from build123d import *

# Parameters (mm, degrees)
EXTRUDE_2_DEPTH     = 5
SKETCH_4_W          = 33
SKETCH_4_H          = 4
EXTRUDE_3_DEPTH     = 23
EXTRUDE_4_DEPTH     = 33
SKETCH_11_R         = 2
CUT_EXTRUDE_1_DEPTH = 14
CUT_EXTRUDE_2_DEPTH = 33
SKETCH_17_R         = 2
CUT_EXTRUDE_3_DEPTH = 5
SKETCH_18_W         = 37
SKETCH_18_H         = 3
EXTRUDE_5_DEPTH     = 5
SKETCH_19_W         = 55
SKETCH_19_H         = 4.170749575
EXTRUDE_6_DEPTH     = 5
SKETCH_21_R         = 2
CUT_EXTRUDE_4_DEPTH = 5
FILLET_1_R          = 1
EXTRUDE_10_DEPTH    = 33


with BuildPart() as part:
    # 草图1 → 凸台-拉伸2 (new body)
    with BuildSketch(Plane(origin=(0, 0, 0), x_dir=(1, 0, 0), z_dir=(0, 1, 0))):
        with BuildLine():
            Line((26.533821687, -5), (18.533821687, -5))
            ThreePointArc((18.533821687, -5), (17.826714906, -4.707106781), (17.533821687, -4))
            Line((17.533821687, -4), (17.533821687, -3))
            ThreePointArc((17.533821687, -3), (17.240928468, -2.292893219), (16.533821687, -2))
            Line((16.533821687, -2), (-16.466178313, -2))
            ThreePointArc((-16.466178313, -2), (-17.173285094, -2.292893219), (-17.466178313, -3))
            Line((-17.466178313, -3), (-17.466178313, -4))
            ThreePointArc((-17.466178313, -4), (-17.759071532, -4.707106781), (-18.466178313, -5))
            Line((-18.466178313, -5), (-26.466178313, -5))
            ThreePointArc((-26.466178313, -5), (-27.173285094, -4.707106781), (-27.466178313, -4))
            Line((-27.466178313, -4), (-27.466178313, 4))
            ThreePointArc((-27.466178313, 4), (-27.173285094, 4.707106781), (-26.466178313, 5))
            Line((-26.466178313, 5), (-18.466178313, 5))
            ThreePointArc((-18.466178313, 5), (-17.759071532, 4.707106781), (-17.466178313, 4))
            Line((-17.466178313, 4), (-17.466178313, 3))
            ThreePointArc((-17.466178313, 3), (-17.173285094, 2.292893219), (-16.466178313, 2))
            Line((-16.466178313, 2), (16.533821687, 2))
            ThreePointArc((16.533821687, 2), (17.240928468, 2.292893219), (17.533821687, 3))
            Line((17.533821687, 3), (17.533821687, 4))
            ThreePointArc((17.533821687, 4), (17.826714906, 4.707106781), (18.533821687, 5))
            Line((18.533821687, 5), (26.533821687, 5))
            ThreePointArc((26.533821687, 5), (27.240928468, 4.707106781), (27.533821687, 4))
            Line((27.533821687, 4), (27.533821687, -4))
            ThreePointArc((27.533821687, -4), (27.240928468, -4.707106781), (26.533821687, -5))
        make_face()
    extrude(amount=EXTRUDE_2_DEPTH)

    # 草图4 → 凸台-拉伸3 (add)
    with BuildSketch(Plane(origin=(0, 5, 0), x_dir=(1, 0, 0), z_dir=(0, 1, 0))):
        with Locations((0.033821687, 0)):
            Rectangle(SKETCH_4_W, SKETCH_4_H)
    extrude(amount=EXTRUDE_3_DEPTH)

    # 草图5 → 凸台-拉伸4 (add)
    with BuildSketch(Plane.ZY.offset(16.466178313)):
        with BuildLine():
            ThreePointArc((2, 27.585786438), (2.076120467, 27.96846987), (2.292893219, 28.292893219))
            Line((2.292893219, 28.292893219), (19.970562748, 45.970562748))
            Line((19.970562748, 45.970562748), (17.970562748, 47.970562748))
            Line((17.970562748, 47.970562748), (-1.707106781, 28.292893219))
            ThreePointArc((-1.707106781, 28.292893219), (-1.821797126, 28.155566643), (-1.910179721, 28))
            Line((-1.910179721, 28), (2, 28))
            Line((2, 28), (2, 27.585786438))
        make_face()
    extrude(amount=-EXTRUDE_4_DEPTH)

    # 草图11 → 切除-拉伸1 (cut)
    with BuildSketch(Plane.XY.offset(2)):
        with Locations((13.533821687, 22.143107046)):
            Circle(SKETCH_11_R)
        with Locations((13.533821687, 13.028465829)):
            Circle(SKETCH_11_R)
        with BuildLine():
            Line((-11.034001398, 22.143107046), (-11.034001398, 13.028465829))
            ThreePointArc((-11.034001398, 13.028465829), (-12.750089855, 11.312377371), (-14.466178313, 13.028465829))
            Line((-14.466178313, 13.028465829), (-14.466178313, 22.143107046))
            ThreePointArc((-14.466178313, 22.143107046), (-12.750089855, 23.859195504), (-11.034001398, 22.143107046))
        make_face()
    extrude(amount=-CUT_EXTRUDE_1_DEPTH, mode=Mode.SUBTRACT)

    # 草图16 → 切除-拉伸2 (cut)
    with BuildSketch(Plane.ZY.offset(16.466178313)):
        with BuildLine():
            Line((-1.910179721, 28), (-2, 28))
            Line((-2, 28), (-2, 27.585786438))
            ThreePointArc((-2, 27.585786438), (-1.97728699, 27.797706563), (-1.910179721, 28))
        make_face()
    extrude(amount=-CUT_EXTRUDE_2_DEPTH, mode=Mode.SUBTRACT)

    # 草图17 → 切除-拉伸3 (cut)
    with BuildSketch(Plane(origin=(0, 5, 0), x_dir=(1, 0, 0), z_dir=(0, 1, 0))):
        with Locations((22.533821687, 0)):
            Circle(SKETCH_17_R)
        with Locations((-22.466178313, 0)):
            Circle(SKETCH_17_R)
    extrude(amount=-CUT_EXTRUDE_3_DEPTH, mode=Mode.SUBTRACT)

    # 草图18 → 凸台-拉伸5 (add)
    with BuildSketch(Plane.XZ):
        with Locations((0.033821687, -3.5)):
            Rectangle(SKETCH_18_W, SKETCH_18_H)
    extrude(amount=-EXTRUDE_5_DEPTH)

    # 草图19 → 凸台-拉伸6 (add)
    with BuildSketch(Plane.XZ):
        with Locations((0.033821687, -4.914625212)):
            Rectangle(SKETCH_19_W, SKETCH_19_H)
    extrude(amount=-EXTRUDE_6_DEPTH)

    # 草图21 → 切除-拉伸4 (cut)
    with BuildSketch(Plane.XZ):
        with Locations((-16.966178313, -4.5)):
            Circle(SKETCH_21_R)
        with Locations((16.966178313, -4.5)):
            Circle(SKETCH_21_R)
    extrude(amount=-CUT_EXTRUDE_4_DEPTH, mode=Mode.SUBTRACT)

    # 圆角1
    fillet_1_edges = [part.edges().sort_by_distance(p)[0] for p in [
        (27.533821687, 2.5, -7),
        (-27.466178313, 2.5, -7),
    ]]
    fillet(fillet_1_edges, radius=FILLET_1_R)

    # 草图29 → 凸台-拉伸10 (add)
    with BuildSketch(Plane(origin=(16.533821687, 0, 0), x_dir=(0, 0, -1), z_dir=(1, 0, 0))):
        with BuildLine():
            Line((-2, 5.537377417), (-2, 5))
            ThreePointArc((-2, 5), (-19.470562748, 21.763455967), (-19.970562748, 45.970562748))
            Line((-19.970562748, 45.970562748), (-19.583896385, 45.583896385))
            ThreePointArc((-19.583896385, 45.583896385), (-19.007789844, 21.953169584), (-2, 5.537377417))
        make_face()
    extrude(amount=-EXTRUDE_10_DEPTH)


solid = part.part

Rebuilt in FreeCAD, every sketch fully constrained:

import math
import FreeCAD as App
import Part
import Sketcher
Q = App.Units.Quantity


def edges_at(feature, points):
    """Names of the edges that pass closest to the given points."""
    edges = feature.Shape.Edges
    near = lambda p: min(range(len(edges)), key=lambda i: edges[i].distToShape(Part.Vertex(*p))[0])
    return sorted({f"Edge{near(p) + 1}" for p in points})


def add_polygon(sketch, points):
    """Adds a closed chain of lines whose ends are joined by coincident constraints."""
    first, n = sketch.GeometryCount, len(points)
    for a, b in zip(points, points[1:] + points[:1]):
        sketch.addGeometry(Part.LineSegment(App.Vector(*a, 0), App.Vector(*b, 0)), False)
    for i in range(n):
        sketch.addConstraint(Sketcher.Constraint("Coincident", first + i, 2, first + (i + 1) % n, 1))

doc = App.newDocument("Part")
body = doc.addObject("PartDesign::Body", "Body")

# Sketch on XZ plane
sketch1 = body.newObject("Sketcher::SketchObject", "Sketch")
sketch1.AttachmentSupport = (doc.getObject("XZ_Plane"), [""])
sketch1.MapMode = "FlatFace"
sketch1.addGeometry([
    Part.LineSegment(App.Vector(18.5, 5, 0), App.Vector(26.5, 5, 0)),  # 0
    Part.ArcOfCircle(Part.Circle(App.Vector(26.5, 4, 0), App.Vector(0, 0, 1), 1), math.radians(0), math.radians(90)),  # 1
    Part.LineSegment(App.Vector(27.5, 4, 0), App.Vector(27.5, -4, 0)),  # 2
    Part.ArcOfCircle(Part.Circle(App.Vector(26.5, -4, 0), App.Vector(0, 0, 1), 1), math.radians(-90), math.radians(0)),  # 3
    Part.LineSegment(App.Vector(26.5, -5, 0), App.Vector(18.5, -5, 0)),  # 4
    Part.ArcOfCircle(Part.Circle(App.Vector(18.5, -4, 0), App.Vector(0, 0, 1), 1), math.radians(-180), math.radians(-90)),  # 5
    Part.LineSegment(App.Vector(17.5, -4, 0), App.Vector(17.5, -3, 0)),  # 6
    Part.ArcOfCircle(Part.Circle(App.Vector(16.5, -3, 0), App.Vector(0, 0, 1), 1), math.radians(0), math.radians(90)),  # 7
    Part.LineSegment(App.Vector(16.5, -2, 0), App.Vector(-16.5, -2, 0)),  # 8
    Part.ArcOfCircle(Part.Circle(App.Vector(-16.5, -3, 0), App.Vector(0, 0, 1), 1), math.radians(90), math.radians(180)),  # 9
    Part.LineSegment(App.Vector(-17.5, -3, 0), App.Vector(-17.5, -4, 0)),  # 10
    Part.ArcOfCircle(Part.Circle(App.Vector(-18.5, -4, 0), App.Vector(0, 0, 1), 1), math.radians(-90), math.radians(0)),  # 11
    Part.LineSegment(App.Vector(-18.5, -5, 0), App.Vector(-26.5, -5, 0)),  # 12
    Part.ArcOfCircle(Part.Circle(App.Vector(-26.5, -4, 0), App.Vector(0, 0, 1), 1), math.radians(-180), math.radians(-90)),  # 13
    Part.LineSegment(App.Vector(-27.5, -4, 0), App.Vector(-27.5, 4, 0)),  # 14
    Part.ArcOfCircle(Part.Circle(App.Vector(-26.5, 4, 0), App.Vector(0, 0, 1), 1), math.radians(90), math.radians(180)),  # 15
    Part.LineSegment(App.Vector(-26.5, 5, 0), App.Vector(-18.5, 5, 0)),  # 16
    Part.ArcOfCircle(Part.Circle(App.Vector(-18.5, 4, 0), App.Vector(0, 0, 1), 1), math.radians(0), math.radians(90)),  # 17
    Part.LineSegment(App.Vector(-17.5, 4, 0), App.Vector(-17.5, 3, 0)),  # 18
    Part.ArcOfCircle(Part.Circle(App.Vector(-16.5, 3, 0), App.Vector(0, 0, 1), 1), math.radians(-180), math.radians(-90)),  # 19
    Part.LineSegment(App.Vector(-16.5, 2, 0), App.Vector(16.5, 2, 0)),  # 20
    Part.ArcOfCircle(Part.Circle(App.Vector(16.5, 3, 0), App.Vector(0, 0, 1), 1), math.radians(-90), math.radians(0)),  # 21
    Part.LineSegment(App.Vector(17.5, 3, 0), App.Vector(17.5, 4, 0)),  # 22
    Part.ArcOfCircle(Part.Circle(App.Vector(18.5, 4, 0), App.Vector(0, 0, 1), 1), math.radians(90), math.radians(180)),  # 23
], False)
sketch1.addConstraint([
    Sketcher.Constraint("Tangent", 0, 2, 1, 2),
    Sketcher.Constraint("Tangent", 1, 1, 2, 1),
    Sketcher.Constraint("Tangent", 2, 2, 3, 2),
    Sketcher.Constraint("Tangent", 3, 1, 4, 1),
    Sketcher.Constraint("Tangent", 4, 2, 5, 2),
    Sketcher.Constraint("Tangent", 5, 1, 6, 1),
    Sketcher.Constraint("Tangent", 6, 2, 7, 1),
    Sketcher.Constraint("Tangent", 7, 2, 8, 1),
    Sketcher.Constraint("Tangent", 8, 2, 9, 1),
    Sketcher.Constraint("Tangent", 9, 2, 10, 1),
    Sketcher.Constraint("Tangent", 10, 2, 11, 2),
    Sketcher.Constraint("Tangent", 11, 1, 12, 1),
    Sketcher.Constraint("Tangent", 12, 2, 13, 2),
    Sketcher.Constraint("Tangent", 13, 1, 14, 1),
    Sketcher.Constraint("Tangent", 14, 2, 15, 2),
    Sketcher.Constraint("Tangent", 15, 1, 16, 1),
    Sketcher.Constraint("Tangent", 16, 2, 17, 2),
    Sketcher.Constraint("Tangent", 17, 1, 18, 1),
    Sketcher.Constraint("Tangent", 18, 2, 19, 1),
    Sketcher.Constraint("Tangent", 19, 2, 20, 1),
    Sketcher.Constraint("Tangent", 20, 2, 21, 1),
    Sketcher.Constraint("Tangent", 21, 2, 22, 1),
    Sketcher.Constraint("Tangent", 22, 2, 23, 2),
    Sketcher.Constraint("Tangent", 23, 1, 0, 1),
    Sketcher.Constraint("Horizontal", 0),
    Sketcher.Constraint("Vertical", 2),
    Sketcher.Constraint("Horizontal", 4),
    Sketcher.Constraint("Vertical", 6),
    Sketcher.Constraint("Horizontal", 8),
    Sketcher.Constraint("Vertical", 10),
    Sketcher.Constraint("Horizontal", 12),
    Sketcher.Constraint("Vertical", 14),
    Sketcher.Constraint("Horizontal", 16),
    Sketcher.Constraint("Vertical", 18),
    Sketcher.Constraint("Horizontal", 20),
    Sketcher.Constraint("Vertical", 22),
    Sketcher.Constraint("Equal", 1, 3),
    Sketcher.Constraint("Equal", 3, 5),
    Sketcher.Constraint("Equal", 5, 7),
    Sketcher.Constraint("Equal", 7, 9),
    Sketcher.Constraint("Equal", 9, 11),
    Sketcher.Constraint("Equal", 11, 13),
    Sketcher.Constraint("Equal", 13, 15),
    Sketcher.Constraint("Equal", 15, 17),
    Sketcher.Constraint("Equal", 17, 19),
    Sketcher.Constraint("Equal", 19, 21),
    Sketcher.Constraint("Equal", 21, 23),
    Sketcher.Constraint("Symmetric", 11, 3, 17, 3, -1),
    Sketcher.Constraint("Symmetric", 7, 3, 21, 3, -1),
    Sketcher.Constraint("Horizontal", 5, 3, 11, 3),
    Sketcher.Constraint("Horizontal", 1, 3, 15, 3),
    Sketcher.Constraint("Equal", 4, 12),
    Sketcher.Constraint("Equal", 16, 2),
    Sketcher.Constraint("Radius", 1, 1.0),
    Sketcher.Constraint("DistanceX", 0, 1, 0, 2, 8.0),
    Sketcher.Constraint("DistanceX", 8, 2, 8, 1, 33.0),
    Sketcher.Constraint("DistanceY", 6, 1, 6, 2, 1.0),
    Sketcher.Constraint("DistanceX", -1, 1, 1, 3, 26.533822),
])
pad1 = body.newObject("PartDesign::Pad", "Pad")
pad1.Profile = sketch1
pad1.Length = 5
pad1.Reversed = True

# Sketch on XZ plane
sketch2 = body.newObject("Sketcher::SketchObject", "Sketch001")
sketch2.AttachmentSupport = (doc.getObject("XZ_Plane"), [""])
sketch2.MapMode = "FlatFace"
sketch2.AttachmentOffset = App.Placement(App.Vector(0, 0, -5), App.Rotation())
add_polygon(sketch2, [(-16.5, -2), (-16.5, 2), (16.5, 2), (16.5, -2)])  # lines 0-3
sketch2.addConstraint([
    Sketcher.Constraint("Vertical", 0),
    Sketcher.Constraint("Horizontal", 1),
    Sketcher.Constraint("Vertical", 2),
    Sketcher.Constraint("Horizontal", 3),
    Sketcher.Constraint("DistanceX", 1, 1, 1, 2, 33.0),
    Sketcher.Constraint("DistanceY", 0, 1, 0, 2, 4.0),
    Sketcher.Constraint("DistanceY", -1, 1, 0, 2, 2.0),
    Sketcher.Constraint("DistanceX", 0, 2, -1, 1, 16.466178),
])
pad2 = body.newObject("PartDesign::Pad", "Pad001")
pad2.Profile = sketch2
pad2.Length = 23
pad2.Reversed = True

# Sketch on YZ plane
sketch3 = body.newObject("Sketcher::SketchObject", "Sketch002")
sketch3.AttachmentSupport = (doc.getObject("YZ_Plane"), [""])
sketch3.MapMode = "FlatFace"
sketch3.AttachmentOffset = App.Placement(App.Vector(0, 0, -16.466178), App.Rotation())
sketch3.addGeometry([
    Part.ArcOfCircle(Part.Circle(App.Vector(27.59, 3, 0), App.Vector(0, 0, 1), 1), math.radians(-90), math.radians(-45)),  # 0
    Part.LineSegment(App.Vector(28.29, 2.29, 0), App.Vector(45.97, 19.97, 0)),  # 1
    Part.LineSegment(App.Vector(45.97, 19.97, 0), App.Vector(47.97, 17.97, 0)),  # 2
    Part.LineSegment(App.Vector(47.97, 17.97, 0), App.Vector(28.29, -1.71, 0)),  # 3
    Part.ArcOfCircle(Part.Circle(App.Vector(27.59, -1, 0), App.Vector(0, 0, 1), 1), math.radians(-66), math.radians(-45)),  # 4
    Part.LineSegment(App.Vector(28, -1.91, 0), App.Vector(28, 2, 0)),  # 5
    Part.LineSegment(App.Vector(28, 2, 0), App.Vector(27.59, 2, 0)),  # 6
], False)
sketch3.addConstraint([
    Sketcher.Constraint("Tangent", 0, 2, 1, 1),
    Sketcher.Constraint("Coincident", 1, 2, 2, 1),
    Sketcher.Constraint("Coincident", 2, 2, 3, 1),
    Sketcher.Constraint("Tangent", 3, 2, 4, 2),
    Sketcher.Constraint("Coincident", 4, 1, 5, 1),
    Sketcher.Constraint("Coincident", 5, 2, 6, 1),
    Sketcher.Constraint("Tangent", 6, 2, 0, 1),
    Sketcher.Constraint("Vertical", 5),
    Sketcher.Constraint("Horizontal", 6),
    Sketcher.Constraint("Equal", 0, 4),
    Sketcher.Constraint("Perpendicular", 1, 2),
    Sketcher.Constraint("Perpendicular", 2, 3),
    Sketcher.Constraint("Vertical", 0, 3, 4, 3),
    Sketcher.Constraint("Radius", 0, 1.0),
    Sketcher.Constraint("Angle", 1, Q("45 deg")),
    Sketcher.Constraint("Distance", 1, 25.0),
    Sketcher.Constraint("DistanceY", -1, 1, 0, 3, 3.0),
    Sketcher.Constraint("DistanceY", 4, 3, -1, 1, 1.0),
    Sketcher.Constraint("DistanceX", -1, 1, 4, 1, 28.0),
    Sketcher.Constraint("DistanceY", 5, 1, 5, 2, 3.91018),
])
pad3 = body.newObject("PartDesign::Pad", "Pad002")
pad3.Profile = sketch3
pad3.Length = 33

# Sketch on XY plane
sketch4 = body.newObject("Sketcher::SketchObject", "Sketch003")
sketch4.AttachmentSupport = (doc.getObject("XY_Plane"), [""])
sketch4.MapMode = "FlatFace"
sketch4.AttachmentOffset = App.Placement(App.Vector(0, 0, 2), App.Rotation())
sketch4.addGeometry([
    Part.Circle(App.Vector(13.5, 22.1, 0), App.Vector(0, 0, 1), 2),  # 0
    Part.Circle(App.Vector(13.5, 13, 0), App.Vector(0, 0, 1), 2),  # 1
    Part.LineSegment(App.Vector(-11, 13, 0), App.Vector(-11, 22.1, 0)),  # 2
    Part.ArcOfCircle(Part.Circle(App.Vector(-12.8, 22.1, 0), App.Vector(0, 0, 1), 1.7), math.radians(0), math.radians(180)),  # 3
    Part.LineSegment(App.Vector(-14.5, 22.1, 0), App.Vector(-14.5, 13, 0)),  # 4
    Part.ArcOfCircle(Part.Circle(App.Vector(-12.8, 13, 0), App.Vector(0, 0, 1), 1.7), math.radians(180), math.radians(360)),  # 5
], False)
sketch4.addConstraint([
    Sketcher.Constraint("Tangent", 2, 2, 3, 1),
    Sketcher.Constraint("Tangent", 3, 2, 4, 1),
    Sketcher.Constraint("Tangent", 4, 2, 5, 1),
    Sketcher.Constraint("Tangent", 5, 2, 2, 1),
    Sketcher.Constraint("Vertical", 2),
    Sketcher.Constraint("Vertical", 4),
    Sketcher.Constraint("Equal", 0, 1),
    Sketcher.Constraint("Horizontal", 0, 3, 3, 3),
    Sketcher.Constraint("Horizontal", 1, 3, 5, 3),
    Sketcher.Constraint("Vertical", 0, 3, 1, 3),
    Sketcher.Constraint("Diameter", 0, 4.0),
    Sketcher.Constraint("DistanceX", 3, 2, 0, 3, 28.0),
    Sketcher.Constraint("Radius", 3, 1.716088),
    Sketcher.Constraint("DistanceX", 2, 2, -1, 1, 11.034001),
    Sketcher.Constraint("DistanceY", 2, 1, 2, 2, 9.114641),
    Sketcher.Constraint("DistanceY", -1, 1, 0, 3, 22.143107),
])
pocket1 = body.newObject("PartDesign::Pocket", "Pocket")
pocket1.Profile = sketch4
pocket1.Length = 14

# Sketch on YZ plane
sketch5 = body.newObject("Sketcher::SketchObject", "Sketch004")
sketch5.AttachmentSupport = (doc.getObject("YZ_Plane"), [""])
sketch5.MapMode = "FlatFace"
sketch5.AttachmentOffset = App.Placement(App.Vector(0, 0, -16.466178), App.Rotation())
sketch5.addGeometry([
    Part.LineSegment(App.Vector(28, -1.91, 0), App.Vector(28, -2, 0)),
    Part.LineSegment(App.Vector(28, -2, 0), App.Vector(27.59, -2, 0)),
    Part.ArcOfCircle(Part.Circle(App.Vector(27.59, -1, 0), App.Vector(0, 0, 1), 1), math.radians(-90), math.radians(-66)),
], False)
sketch5.addConstraint([
    Sketcher.Constraint("Coincident", 0, 2, 1, 1),
    Sketcher.Constraint("Tangent", 1, 2, 2, 1),
    Sketcher.Constraint("Coincident", 2, 2, 0, 1),
    Sketcher.Constraint("Vertical", 0),
    Sketcher.Constraint("Horizontal", 1),
    Sketcher.Constraint("Radius", 2, 1.0),
    Sketcher.Constraint("DistanceY", 2, 3, -1, 1, 1.0),
    Sketcher.Constraint("DistanceX", -1, 1, 0, 2, 28.0),
    Sketcher.Constraint("DistanceY", 0, 2, 0, 1, 0.08982),
])
pocket2 = body.newObject("PartDesign::Pocket", "Pocket001")
pocket2.Profile = sketch5
pocket2.Length = 33
pocket2.Reversed = True

# Sketch on XZ plane
sketch6 = body.newObject("Sketcher::SketchObject", "Sketch005")
sketch6.AttachmentSupport = (doc.getObject("XZ_Plane"), [""])
sketch6.MapMode = "FlatFace"
sketch6.AttachmentOffset = App.Placement(App.Vector(0, 0, -5), App.Rotation())
sketch6.addGeometry([
    Part.Circle(App.Vector(22.5, 0, 0), App.Vector(0, 0, 1), 2),
    Part.Circle(App.Vector(-22.5, 0, 0), App.Vector(0, 0, 1), 2),
], False)
sketch6.addConstraint([
    Sketcher.Constraint("Equal", 0, 1),
    Sketcher.Constraint("PointOnObject", 0, 3, -1),
    Sketcher.Constraint("PointOnObject", 1, 3, -1),
    Sketcher.Constraint("Diameter", 0, 4.0),
    Sketcher.Constraint("DistanceX", 1, 3, 0, 3, 45.0),
    Sketcher.Constraint("DistanceX", -1, 1, 0, 3, 22.533822),
])
pocket3 = body.newObject("PartDesign::Pocket", "Pocket002")
pocket3.Profile = sketch6
pocket3.Length = 5
pocket3.Reversed = True

# Sketch on XZ plane
sketch7 = body.newObject("Sketcher::SketchObject", "Sketch006")
sketch7.AttachmentSupport = (doc.getObject("XZ_Plane"), [""])
sketch7.MapMode = "FlatFace"
add_polygon(sketch7, [(-18.5, -2), (-18.5, -5), (18.5, -5), (18.5, -2)])  # lines 0-3
sketch7.addConstraint([
    Sketcher.Constraint("Vertical", 0),
    Sketcher.Constraint("Horizontal", 1),
    Sketcher.Constraint("Vertical", 2),
    Sketcher.Constraint("Horizontal", 3),
    Sketcher.Constraint("DistanceX", 1, 1, 1, 2, 37.0),
    Sketcher.Constraint("DistanceY", 0, 2, 0, 1, 3.0),
    Sketcher.Constraint("DistanceY", 0, 2, -1, 1, 5.0),
    Sketcher.Constraint("DistanceX", 0, 2, -1, 1, 18.466178),
])
pad4 = body.newObject("PartDesign::Pad", "Pad003")
pad4.Profile = sketch7
pad4.Length = 5
pad4.Reversed = True

# Sketch on XZ plane
sketch8 = body.newObject("Sketcher::SketchObject", "Sketch007")
sketch8.AttachmentSupport = (doc.getObject("XZ_Plane"), [""])
sketch8.MapMode = "FlatFace"
add_polygon(sketch8, [(-27.5, -2.8), (-27.5, -7), (27.5, -7), (27.5, -2.8)])  # lines 0-3
sketch8.addConstraint([
    Sketcher.Constraint("Vertical", 0),
    Sketcher.Constraint("Horizontal", 1),
    Sketcher.Constraint("Vertical", 2),
    Sketcher.Constraint("Horizontal", 3),
    Sketcher.Constraint("DistanceX", 1, 1, 1, 2, 55.0),
    Sketcher.Constraint("DistanceY", 0, 2, -1, 1, 7.0),
    Sketcher.Constraint("DistanceY", 0, 2, 0, 1, 4.17075),
    Sketcher.Constraint("DistanceX", 0, 2, -1, 1, 27.466178),
])
pad5 = body.newObject("PartDesign::Pad", "Pad004")
pad5.Profile = sketch8
pad5.Length = 5
pad5.Reversed = True

# Sketch on XZ plane
sketch9 = body.newObject("Sketcher::SketchObject", "Sketch008")
sketch9.AttachmentSupport = (doc.getObject("XZ_Plane"), [""])
sketch9.MapMode = "FlatFace"
sketch9.addGeometry([
    Part.Circle(App.Vector(-17, -4.5, 0), App.Vector(0, 0, 1), 2),
    Part.Circle(App.Vector(17, -4.5, 0), App.Vector(0, 0, 1), 2),
], False)
sketch9.addConstraint([
    Sketcher.Constraint("Equal", 0, 1),
    Sketcher.Constraint("Symmetric", 0, 3, 1, 3, -2),
    Sketcher.Constraint("Diameter", 0, 4.0),
    Sketcher.Constraint("DistanceY", 0, 3, -1, 1, 4.5),
    Sketcher.Constraint("DistanceX", 0, 3, -1, 1, 16.966178),
])
pocket4 = body.newObject("PartDesign::Pocket", "Pocket003")
pocket4.Profile = sketch9
pocket4.Length = 5
doc.recompute()

fillet = body.newObject("PartDesign::Fillet", "Fillet")
fillet.Base = (pocket4, edges_at(pocket4, [(27.534, 2.5, -7), (-27.466, 2.5, -7)]))
fillet.Radius = 1

# Sketch on YZ plane
sketch10 = body.newObject("Sketcher::SketchObject", "Sketch009")
sketch10.AttachmentSupport = (doc.getObject("YZ_Plane"), [""])
sketch10.MapMode = "FlatFace"
sketch10.AttachmentOffset = App.Placement(App.Vector(0, 0, 16.533822), App.Rotation())
sketch10.addGeometry([
    Part.LineSegment(App.Vector(5, 2, 0), App.Vector(5.5, 2, 0)),
    Part.ArcOfCircle(Part.Circle(App.Vector(34.5, -9.5, 0), App.Vector(0, 0, 1), 31.1), math.radians(69), math.radians(158)),
    Part.LineSegment(App.Vector(45.6, 19.6, 0), App.Vector(46, 20, 0)),
    Part.ArcOfCircle(Part.Circle(App.Vector(34.5, -9.5, 0), App.Vector(0, 0, 1), 31.6), math.radians(69), math.radians(159)),
], False)
sketch10.addConstraint([
    Sketcher.Constraint("Coincident", 0, 2, 1, 2),
    Sketcher.Constraint("Coincident", 1, 1, 2, 1),
    Sketcher.Constraint("Coincident", 2, 2, 3, 1),
    Sketcher.Constraint("Coincident", 3, 2, 0, 1),
    Sketcher.Constraint("Horizontal", 0),
    Sketcher.Constraint("Coincident", 3, 3, 1, 3),
    Sketcher.Constraint("Angle", 2, Q("45 deg")),
    Sketcher.Constraint("DistanceY", -1, 1, 0, 2, 2.0),
    Sketcher.Constraint("DistanceX", -1, 1, 3, 2, 5.0),
    Sketcher.Constraint("DistanceY", 1, 3, -1, 1, 9.5),
    Sketcher.Constraint("DistanceX", 3, 3, 2, 2, 11.5),
    Sketcher.Constraint("Radius", 1, 31.134855),
    Sketcher.Constraint("Radius", 3, 31.634855),
])
pad6 = body.newObject("PartDesign::Pad", "Pad005")
pad6.Profile = sketch10
pad6.Length = 33
pad6.Reversed = True

doc.recompute()
